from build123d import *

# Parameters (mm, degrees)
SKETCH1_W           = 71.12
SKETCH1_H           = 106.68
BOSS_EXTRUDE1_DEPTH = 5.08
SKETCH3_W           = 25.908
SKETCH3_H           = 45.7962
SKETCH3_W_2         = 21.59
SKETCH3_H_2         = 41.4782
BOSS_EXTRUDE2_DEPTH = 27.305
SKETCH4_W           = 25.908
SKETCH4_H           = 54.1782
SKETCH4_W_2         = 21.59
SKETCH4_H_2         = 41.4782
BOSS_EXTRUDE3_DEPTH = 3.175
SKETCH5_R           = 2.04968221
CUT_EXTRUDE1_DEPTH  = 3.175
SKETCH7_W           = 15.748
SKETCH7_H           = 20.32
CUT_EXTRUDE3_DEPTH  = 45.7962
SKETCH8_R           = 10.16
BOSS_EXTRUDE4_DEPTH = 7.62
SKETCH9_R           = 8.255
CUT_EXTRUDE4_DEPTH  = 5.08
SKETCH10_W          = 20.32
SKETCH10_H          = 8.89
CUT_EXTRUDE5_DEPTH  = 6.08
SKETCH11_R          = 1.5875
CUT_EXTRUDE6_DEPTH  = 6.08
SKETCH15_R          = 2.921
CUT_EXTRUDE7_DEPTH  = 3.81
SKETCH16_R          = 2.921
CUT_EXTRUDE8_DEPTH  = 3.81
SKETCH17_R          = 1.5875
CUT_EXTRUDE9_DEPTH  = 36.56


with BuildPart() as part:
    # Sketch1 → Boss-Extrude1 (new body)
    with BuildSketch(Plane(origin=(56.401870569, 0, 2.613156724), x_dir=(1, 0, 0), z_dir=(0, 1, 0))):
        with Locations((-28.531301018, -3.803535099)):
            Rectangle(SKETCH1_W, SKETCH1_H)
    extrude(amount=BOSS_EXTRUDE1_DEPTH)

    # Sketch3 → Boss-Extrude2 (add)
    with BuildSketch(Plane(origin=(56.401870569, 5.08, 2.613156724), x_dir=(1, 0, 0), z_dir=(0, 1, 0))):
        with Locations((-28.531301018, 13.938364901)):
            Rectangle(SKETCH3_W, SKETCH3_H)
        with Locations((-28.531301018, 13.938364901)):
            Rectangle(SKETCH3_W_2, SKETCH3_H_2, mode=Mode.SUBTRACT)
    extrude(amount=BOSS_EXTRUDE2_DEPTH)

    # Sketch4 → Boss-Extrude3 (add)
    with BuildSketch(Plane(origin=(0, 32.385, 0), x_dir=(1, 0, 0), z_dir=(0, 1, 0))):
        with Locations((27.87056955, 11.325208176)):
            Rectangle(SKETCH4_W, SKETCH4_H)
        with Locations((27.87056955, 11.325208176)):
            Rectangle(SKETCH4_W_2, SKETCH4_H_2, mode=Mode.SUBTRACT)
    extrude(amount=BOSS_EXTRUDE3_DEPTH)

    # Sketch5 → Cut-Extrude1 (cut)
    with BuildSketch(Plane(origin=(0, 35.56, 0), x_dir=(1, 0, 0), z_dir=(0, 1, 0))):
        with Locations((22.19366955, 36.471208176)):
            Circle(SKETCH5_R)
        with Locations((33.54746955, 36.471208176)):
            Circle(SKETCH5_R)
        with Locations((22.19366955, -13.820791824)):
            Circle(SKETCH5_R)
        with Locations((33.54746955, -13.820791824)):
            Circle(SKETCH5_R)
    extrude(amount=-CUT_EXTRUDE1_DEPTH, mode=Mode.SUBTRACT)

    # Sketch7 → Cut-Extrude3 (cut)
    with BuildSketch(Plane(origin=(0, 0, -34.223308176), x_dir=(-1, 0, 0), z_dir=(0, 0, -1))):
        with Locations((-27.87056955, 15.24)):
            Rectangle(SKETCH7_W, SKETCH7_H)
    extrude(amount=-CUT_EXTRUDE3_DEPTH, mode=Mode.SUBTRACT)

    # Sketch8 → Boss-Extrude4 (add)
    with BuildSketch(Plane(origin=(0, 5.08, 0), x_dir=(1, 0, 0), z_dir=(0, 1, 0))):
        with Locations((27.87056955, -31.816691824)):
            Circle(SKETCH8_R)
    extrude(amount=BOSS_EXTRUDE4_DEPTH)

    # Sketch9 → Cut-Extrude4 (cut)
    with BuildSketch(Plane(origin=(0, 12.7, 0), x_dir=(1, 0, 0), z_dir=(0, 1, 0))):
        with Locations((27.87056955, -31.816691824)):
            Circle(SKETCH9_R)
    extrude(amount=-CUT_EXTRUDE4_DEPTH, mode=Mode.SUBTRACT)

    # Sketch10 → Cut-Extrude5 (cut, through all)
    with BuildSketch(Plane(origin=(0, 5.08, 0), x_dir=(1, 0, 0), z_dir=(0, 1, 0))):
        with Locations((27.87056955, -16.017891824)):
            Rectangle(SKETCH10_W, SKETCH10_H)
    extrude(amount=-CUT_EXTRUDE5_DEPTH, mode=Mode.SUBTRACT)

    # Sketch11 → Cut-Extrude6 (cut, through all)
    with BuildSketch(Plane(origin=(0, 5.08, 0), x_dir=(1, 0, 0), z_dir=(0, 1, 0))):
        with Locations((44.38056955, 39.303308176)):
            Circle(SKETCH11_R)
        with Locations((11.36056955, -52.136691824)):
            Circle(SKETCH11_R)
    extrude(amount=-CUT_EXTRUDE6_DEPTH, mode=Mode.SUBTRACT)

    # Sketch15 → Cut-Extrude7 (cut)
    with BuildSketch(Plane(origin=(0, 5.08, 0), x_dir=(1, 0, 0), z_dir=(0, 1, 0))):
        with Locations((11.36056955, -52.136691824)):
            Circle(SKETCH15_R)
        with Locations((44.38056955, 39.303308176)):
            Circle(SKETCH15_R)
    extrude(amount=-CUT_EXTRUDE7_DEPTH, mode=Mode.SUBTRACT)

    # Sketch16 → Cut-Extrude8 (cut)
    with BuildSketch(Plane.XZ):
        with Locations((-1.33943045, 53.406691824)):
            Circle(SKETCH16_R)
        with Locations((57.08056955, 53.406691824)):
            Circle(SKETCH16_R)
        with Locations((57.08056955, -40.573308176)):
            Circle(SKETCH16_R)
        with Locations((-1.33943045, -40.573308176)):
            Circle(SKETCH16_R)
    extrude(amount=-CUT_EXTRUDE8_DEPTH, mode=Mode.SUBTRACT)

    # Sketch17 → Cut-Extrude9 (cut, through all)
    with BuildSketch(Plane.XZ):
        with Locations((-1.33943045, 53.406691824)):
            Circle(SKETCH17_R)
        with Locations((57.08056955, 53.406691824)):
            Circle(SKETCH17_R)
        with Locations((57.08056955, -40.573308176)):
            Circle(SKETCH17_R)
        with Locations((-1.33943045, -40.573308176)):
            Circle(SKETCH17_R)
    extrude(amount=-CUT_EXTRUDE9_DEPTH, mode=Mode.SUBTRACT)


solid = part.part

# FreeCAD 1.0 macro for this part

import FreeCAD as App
import Part
import Sketcher
from FreeCAD import Vector
Q = App.Units.Quantity


def add_polygon(sketch, points):
    """Adds a closed chain of lines whose ends are joined by coincident constraints."""
    first, n = sketch.GeometryCount, len(points)
    for a, b in zip(points, points[1:] + points[:1]):
        sketch.addGeometry(Part.LineSegment(App.Vector(*a, 0), App.Vector(*b, 0)), False)
    for i in range(n):
        sketch.addConstraint(Sketcher.Constraint("Coincident", first + i, 2, first + (i + 1) % n, 1))

doc = App.newDocument("Part")
body = doc.addObject("PartDesign::Body", "Body")

sketch1 = body.newObject("Sketcher::SketchObject", "Sketch")
sketch1.AttachmentSupport = (doc.getObject("XZ_Plane"), [""])
sketch1.MapMode = "FlatFace"
add_polygon(sketch1, [(-7.68943, -46.923308), (-7.68943, 59.756692), (63.43057, 59.756692), (63.43057, -46.923308)])
sketch1.addConstraint(Sketcher.Constraint("Vertical", 0))
sketch1.addConstraint(Sketcher.Constraint("Horizontal", 1))
sketch1.addConstraint(Sketcher.Constraint("Vertical", 2))
sketch1.addConstraint(Sketcher.Constraint("Horizontal", 3))
sketch1.addConstraint(Sketcher.Constraint("DistanceX", 1, 1, 1, 2, Q("2.8 in")))
sketch1.addConstraint(Sketcher.Constraint("DistanceY", 0, 1, 0, 2, Q("4.2 in")))
sketch1.addConstraint(Sketcher.Constraint("DistanceX", 0, 2, -1, 1, Q("7.68943 mm")))
sketch1.addConstraint(Sketcher.Constraint("DistanceY", -1, 1, 0, 2, Q("59.756692 mm")))
pad1 = body.newObject("PartDesign::Pad", "Pad")
pad1.Profile = sketch1
pad1.Length = Q("0.2 in")
pad1.Reversed = True

sketch2 = body.newObject("Sketcher::SketchObject", "Sketch001")
sketch2.AttachmentSupport = (doc.getObject("XZ_Plane"), [""])
sketch2.MapMode = "FlatFace"
sketch2.AttachmentOffset = App.Placement(Vector(0, 0, -0.2 * 25.4), App.Rotation())
add_polygon(sketch2, [(14.91657, -34.223308), (14.91657, 11.572892), (40.82457, 11.572892), (40.82457, -34.223308)])
add_polygon(sketch2, [(38.66557, 9.413892), (17.07557, 9.413892), (17.07557, -32.064308), (38.66557, -32.064308)])
sketch2.addConstraint(Sketcher.Constraint("Vertical", 0))
sketch2.addConstraint(Sketcher.Constraint("Horizontal", 1))
sketch2.addConstraint(Sketcher.Constraint("Vertical", 2))
sketch2.addConstraint(Sketcher.Constraint("Horizontal", 3))
sketch2.addConstraint(Sketcher.Constraint("Horizontal", 4))
sketch2.addConstraint(Sketcher.Constraint("Vertical", 5))
sketch2.addConstraint(Sketcher.Constraint("Horizontal", 6))
sketch2.addConstraint(Sketcher.Constraint("Vertical", 7))
sketch2.addConstraint(Sketcher.Constraint("DistanceX", 1, 1, 1, 2, Q("1.02 in")))
sketch2.addConstraint(Sketcher.Constraint("DistanceX", 4, 2, 4, 1, Q("0.85 in")))
sketch2.addConstraint(Sketcher.Constraint("DistanceY", 0, 1, 0, 2, Q("1.803 in")))
sketch2.addConstraint(Sketcher.Constraint("DistanceY", 5, 2, 5, 1, Q("1.633 in")))
sketch2.addConstraint(Sketcher.Constraint("DistanceX", 0, 2, 4, 2, Q("0.085 in")))
sketch2.addConstraint(Sketcher.Constraint("DistanceY", 4, 2, 0, 2, Q("0.085 in")))
sketch2.addConstraint(Sketcher.Constraint("DistanceX", -1, 1, 0, 2, Q("14.91657 mm")))
sketch2.addConstraint(Sketcher.Constraint("DistanceY", -1, 1, 0, 2, Q("11.572892 mm")))
pad2 = body.newObject("PartDesign::Pad", "Pad001")
pad2.Profile = sketch2
pad2.Length = Q("1.075 in")
pad2.Reversed = True

sketch3 = body.newObject("Sketcher::SketchObject", "Sketch002")
sketch3.AttachmentSupport = (doc.getObject("XZ_Plane"), [""])
sketch3.MapMode = "FlatFace"
sketch3.AttachmentOffset = App.Placement(Vector(0, 0, -1.275 * 25.4), App.Rotation())
add_polygon(sketch3, [(14.91657, -38.414308), (14.91657, 15.763892), (40.82457, 15.763892), (40.82457, -38.414308)])
add_polygon(sketch3, [(38.66557, 9.413892), (17.07557, 9.413892), (17.07557, -32.064308), (38.66557, -32.064308)])
sketch3.addConstraint(Sketcher.Constraint("Vertical", 0))
sketch3.addConstraint(Sketcher.Constraint("Horizontal", 1))
sketch3.addConstraint(Sketcher.Constraint("Vertical", 2))
sketch3.addConstraint(Sketcher.Constraint("Horizontal", 3))
sketch3.addConstraint(Sketcher.Constraint("Horizontal", 4))
sketch3.addConstraint(Sketcher.Constraint("Vertical", 5))
sketch3.addConstraint(Sketcher.Constraint("Horizontal", 6))
sketch3.addConstraint(Sketcher.Constraint("Vertical", 7))
sketch3.addConstraint(Sketcher.Constraint("DistanceX", 1, 1, 1, 2, Q("1.02 in")))
sketch3.addConstraint(Sketcher.Constraint("DistanceX", 4, 2, 4, 1, Q("0.85 in")))
sketch3.addConstraint(Sketcher.Constraint("DistanceY", 0, 1, 0, 2, Q("2.133 in")))
sketch3.addConstraint(Sketcher.Constraint("DistanceY", 5, 2, 5, 1, Q("1.633 in")))
sketch3.addConstraint(Sketcher.Constraint("DistanceY", 4, 2, 0, 2, Q("0.25 in")))
sketch3.addConstraint(Sketcher.Constraint("DistanceX", 0, 2, 4, 2, Q("0.085 in")))
sketch3.addConstraint(Sketcher.Constraint("DistanceX", -1, 1, 0, 2, Q("14.91657 mm")))
sketch3.addConstraint(Sketcher.Constraint("DistanceY", -1, 1, 0, 2, Q("15.763892 mm")))
pad3 = body.newObject("PartDesign::Pad", "Pad002")
pad3.Profile = sketch3
pad3.Length = Q("0.125 in")
pad3.Reversed = True

sketch4 = body.newObject("Sketcher::SketchObject", "Sketch003")
sketch4.AttachmentSupport = (doc.getObject("XZ_Plane"), [""])
sketch4.MapMode = "FlatFace"
sketch4.AttachmentOffset = App.Placement(Vector(0, 0, -1.4 * 25.4), App.Rotation())
sketch4.addGeometry(Part.Circle(Vector(22.19367, -36.471208, 0), Vector(0, 0, 1), 2.049682), False)
sketch4.addGeometry(Part.Circle(Vector(33.54747, -36.471208, 0), Vector(0, 0, 1), 2.049682), False)
sketch4.addGeometry(Part.Circle(Vector(22.19367, 13.820792, 0), Vector(0, 0, 1), 2.049682), False)
sketch4.addGeometry(Part.Circle(Vector(33.54747, 13.820792, 0), Vector(0, 0, 1), 2.049682), False)
sketch4.addConstraint(Sketcher.Constraint("Equal", 0, 1))
sketch4.addConstraint(Sketcher.Constraint("Equal", 1, 2))
sketch4.addConstraint(Sketcher.Constraint("Equal", 2, 3))
sketch4.addConstraint(Sketcher.Constraint("Horizontal", 0, 3, 1, 3))
sketch4.addConstraint(Sketcher.Constraint("Horizontal", 2, 3, 3, 3))
sketch4.addConstraint(Sketcher.Constraint("Vertical", 0, 3, 2, 3))
sketch4.addConstraint(Sketcher.Constraint("Vertical", 1, 3, 3, 3))
sketch4.addConstraint(Sketcher.Constraint("DistanceY", 0, 3, 2, 3, Q("1.98 in")))
sketch4.addConstraint(Sketcher.Constraint("DistanceX", 0, 3, 1, 3, Q("0.447 in")))
sketch4.addConstraint(Sketcher.Constraint("Diameter", 0, Q("4.099364 mm")))
sketch4.addConstraint(Sketcher.Constraint("DistanceX", -1, 1, 0, 3, Q("22.19367 mm")))
sketch4.addConstraint(Sketcher.Constraint("DistanceY", 0, 3, -1, 1, Q("36.471208 mm")))
pocket1 = body.newObject("PartDesign::Pocket", "Pocket")
pocket1.Profile = sketch4
pocket1.Length = Q("0.125 in")
pocket1.Reversed = True

sketch5 = body.newObject("Sketcher::SketchObject", "Sketch004")
sketch5.AttachmentSupport = (doc.getObject("XY_Plane"), [""])
sketch5.MapMode = "FlatFace"
sketch5.AttachmentOffset = App.Placement(Vector(0, 0, -34.223308), App.Rotation())
add_polygon(sketch5, [(35.74457, 25.4), (35.74457, 5.08), (19.99657, 5.08), (19.99657, 25.4)])
sketch5.addConstraint(Sketcher.Constraint("Vertical", 0))
sketch5.addConstraint(Sketcher.Constraint("Horizontal", 1))
sketch5.addConstraint(Sketcher.Constraint("Vertical", 2))
sketch5.addConstraint(Sketcher.Constraint("Horizontal", 3))
sketch5.addConstraint(Sketcher.Constraint("DistanceY", 0, 2, 0, 1, Q("0.8 in")))
sketch5.addConstraint(Sketcher.Constraint("DistanceY", -1, 1, 2, 2, Q("1 in")))
sketch5.addConstraint(Sketcher.Constraint("DistanceX", 1, 2, 1, 1, Q("0.62 in")))
sketch5.addConstraint(Sketcher.Constraint("DistanceX", -1, 1, 0, 2, Q("35.74457 mm")))
pocket2 = body.newObject("PartDesign::Pocket", "Pocket001")
pocket2.Profile = sketch5
pocket2.Length = Q("1.803 in")
pocket2.Reversed = True

sketch6 = body.newObject("Sketcher::SketchObject", "Sketch005")
sketch6.AttachmentSupport = (doc.getObject("XZ_Plane"), [""])
sketch6.MapMode = "FlatFace"
sketch6.AttachmentOffset = App.Placement(Vector(0, 0, -0.2 * 25.4), App.Rotation())
sketch6.addGeometry(Part.Circle(Vector(27.87057, 31.816692, 0), Vector(0, 0, 1), 10.16), False)
sketch6.addConstraint(Sketcher.Constraint("Diameter", 0, Q("0.8 in")))
sketch6.addConstraint(Sketcher.Constraint("DistanceX", -1, 1, 0, 3, Q("27.87057 mm")))
sketch6.addConstraint(Sketcher.Constraint("DistanceY", -1, 1, 0, 3, Q("31.816692 mm")))
pad4 = body.newObject("PartDesign::Pad", "Pad003")
pad4.Profile = sketch6
pad4.Length = Q("0.3 in")
pad4.Reversed = True

sketch7 = body.newObject("Sketcher::SketchObject", "Sketch006")
sketch7.AttachmentSupport = (doc.getObject("XZ_Plane"), [""])
sketch7.MapMode = "FlatFace"
sketch7.AttachmentOffset = App.Placement(Vector(0, 0, -0.5 * 25.4), App.Rotation())
sketch7.addGeometry(Part.Circle(Vector(27.87057, 31.816692, 0), Vector(0, 0, 1), 8.255), False)
sketch7.addConstraint(Sketcher.Constraint("Diameter", 0, Q("0.65 in")))
sketch7.addConstraint(Sketcher.Constraint("DistanceX", -1, 1, 0, 3, Q("27.87057 mm")))
sketch7.addConstraint(Sketcher.Constraint("DistanceY", -1, 1, 0, 3, Q("31.816692 mm")))
pocket3 = body.newObject("PartDesign::Pocket", "Pocket002")
pocket3.Profile = sketch7
pocket3.Length = Q("0.2 in")
pocket3.Reversed = True

sketch8 = body.newObject("Sketcher::SketchObject", "Sketch007")
sketch8.AttachmentSupport = (doc.getObject("XZ_Plane"), [""])
sketch8.MapMode = "FlatFace"
sketch8.AttachmentOffset = App.Placement(Vector(0, 0, -0.2 * 25.4), App.Rotation())
add_polygon(sketch8, [(17.71057, 11.572892), (17.71057, 20.462892), (38.03057, 20.462892), (38.03057, 11.572892)])
sketch8.addConstraint(Sketcher.Constraint("Vertical", 0))
sketch8.addConstraint(Sketcher.Constraint("Horizontal", 1))
sketch8.addConstraint(Sketcher.Constraint("Vertical", 2))
sketch8.addConstraint(Sketcher.Constraint("Horizontal", 3))
sketch8.addConstraint(Sketcher.Constraint("DistanceX", 1, 1, 1, 2, Q("0.8 in")))
sketch8.addConstraint(Sketcher.Constraint("DistanceY", 0, 1, 0, 2, Q("0.35 in")))
sketch8.addConstraint(Sketcher.Constraint("DistanceX", -1, 1, 0, 2, Q("17.71057 mm")))
sketch8.addConstraint(Sketcher.Constraint("DistanceY", -1, 1, 0, 2, Q("20.462892 mm")))
pocket4 = body.newObject("PartDesign::Pocket", "Pocket003")
pocket4.Profile = sketch8
pocket4.Type = "ThroughAll"
pocket4.Reversed = True

sketch9 = body.newObject("Sketcher::SketchObject", "Sketch008")
sketch9.AttachmentSupport = (doc.getObject("XZ_Plane"), [""])
sketch9.MapMode = "FlatFace"
sketch9.AttachmentOffset = App.Placement(Vector(0, 0, -0.2 * 25.4), App.Rotation())
sketch9.addGeometry(Part.Circle(Vector(44.38057, -39.303308, 0), Vector(0, 0, 1), 1.5875), False)
sketch9.addGeometry(Part.Circle(Vector(11.36057, 52.136692, 0), Vector(0, 0, 1), 1.5875), False)
sketch9.addConstraint(Sketcher.Constraint("Equal", 0, 1))
sketch9.addConstraint(Sketcher.Constraint("Diameter", 0, Q("0.125 in")))
sketch9.addConstraint(Sketcher.Constraint("DistanceX", 1, 3, 0, 3, Q("1.3 in")))
sketch9.addConstraint(Sketcher.Constraint("DistanceY", 0, 3, 1, 3, Q("3.6 in")))
sketch9.addConstraint(Sketcher.Constraint("DistanceX", -1, 1, 0, 3, Q("44.38057 mm")))
sketch9.addConstraint(Sketcher.Constraint("DistanceY", 0, 3, -1, 1, Q("39.303308 mm")))
pocket5 = body.newObject("PartDesign::Pocket", "Pocket004")
pocket5.Profile = sketch9
pocket5.Type = "ThroughAll"
pocket5.Reversed = True

sketch10 = body.newObject("Sketcher::SketchObject", "Sketch009")
sketch10.AttachmentSupport = (doc.getObject("XZ_Plane"), [""])
sketch10.MapMode = "FlatFace"
sketch10.AttachmentOffset = App.Placement(Vector(0, 0, -0.2 * 25.4), App.Rotation())
sketch10.addGeometry(Part.Circle(Vector(11.36057, 52.136692, 0), Vector(0, 0, 1), 2.921), False)
sketch10.addGeometry(Part.Circle(Vector(44.38057, -39.303308, 0), Vector(0, 0, 1), 2.921), False)
sketch10.addConstraint(Sketcher.Constraint("Equal", 0, 1))
sketch10.addConstraint(Sketcher.Constraint("Diameter", 0, Q("0.23 in")))
sketch10.addConstraint(Sketcher.Constraint("DistanceX", 0, 3, 1, 3, Q("1.3 in")))
sketch10.addConstraint(Sketcher.Constraint("DistanceY", 1, 3, 0, 3, Q("3.6 in")))
sketch10.addConstraint(Sketcher.Constraint("DistanceX", -1, 1, 0, 3, Q("11.36057 mm")))
sketch10.addConstraint(Sketcher.Constraint("DistanceY", -1, 1, 0, 3, Q("52.136692 mm")))
pocket6 = body.newObject("PartDesign::Pocket", "Pocket005")
pocket6.Profile = sketch10
pocket6.Length = Q("0.15 in")
pocket6.Reversed = True

sketch11 = body.newObject("Sketcher::SketchObject", "Sketch010")
sketch11.AttachmentSupport = (doc.getObject("XZ_Plane"), [""])
sketch11.MapMode = "FlatFace"
sketch11.addGeometry(Part.Circle(Vector(-1.33943, 53.406692, 0), Vector(0, 0, 1), 2.921), False)
sketch11.addGeometry(Part.Circle(Vector(57.08057, 53.406692, 0), Vector(0, 0, 1), 2.921), False)
sketch11.addGeometry(Part.Circle(Vector(57.08057, -40.573308, 0), Vector(0, 0, 1), 2.921), False)
sketch11.addGeometry(Part.Circle(Vector(-1.33943, -40.573308, 0), Vector(0, 0, 1), 2.921), False)
sketch11.addConstraint(Sketcher.Constraint("Equal", 0, 1))
sketch11.addConstraint(Sketcher.Constraint("Equal", 1, 2))
sketch11.addConstraint(Sketcher.Constraint("Equal", 2, 3))
sketch11.addConstraint(Sketcher.Constraint("Horizontal", 0, 3, 1, 3))
sketch11.addConstraint(Sketcher.Constraint("Horizontal", 2, 3, 3, 3))
sketch11.addConstraint(Sketcher.Constraint("Vertical", 1, 3, 2, 3))
sketch11.addConstraint(Sketcher.Constraint("Vertical", 0, 3, 3, 3))
sketch11.addConstraint(Sketcher.Constraint("Diameter", 0, Q("0.23 in")))
sketch11.addConstraint(Sketcher.Constraint("DistanceX", 0, 3, 1, 3, Q("2.3 in")))
sketch11.addConstraint(Sketcher.Constraint("DistanceY", 2, 3, 1, 3, Q("3.7 in")))
sketch11.addConstraint(Sketcher.Constraint("DistanceX", 0, 3, -1, 1, Q("1.33943 mm")))
sketch11.addConstraint(Sketcher.Constraint("DistanceY", -1, 1, 0, 3, Q("53.406692 mm")))
pocket7 = body.newObject("PartDesign::Pocket", "Pocket006")
pocket7.Profile = sketch11
pocket7.Length = Q("0.15 in")

sketch12 = body.newObject("Sketcher::SketchObject", "Sketch011")
sketch12.AttachmentSupport = (doc.getObject("XZ_Plane"), [""])
sketch12.MapMode = "FlatFace"
sketch12.addGeometry(Part.Circle(Vector(-1.33943, 53.406692, 0), Vector(0, 0, 1), 1.5875), False)
sketch12.addGeometry(Part.Circle(Vector(57.08057, 53.406692, 0), Vector(0, 0, 1), 1.5875), False)
sketch12.addGeometry(Part.Circle(Vector(57.08057, -40.573308, 0), Vector(0, 0, 1), 1.5875), False)
sketch12.addGeometry(Part.Circle(Vector(-1.33943, -40.573308, 0), Vector(0, 0, 1), 1.5875), False)
sketch12.addConstraint(Sketcher.Constraint("Equal", 0, 1))
sketch12.addConstraint(Sketcher.Constraint("Equal", 1, 2))
sketch12.addConstraint(Sketcher.Constraint("Equal", 2, 3))
sketch12.addConstraint(Sketcher.Constraint("Horizontal", 0, 3, 1, 3))
sketch12.addConstraint(Sketcher.Constraint("Horizontal", 2, 3, 3, 3))
sketch12.addConstraint(Sketcher.Constraint("Vertical", 1, 3, 2, 3))
sketch12.addConstraint(Sketcher.Constraint("Vertical", 0, 3, 3, 3))
sketch12.addConstraint(Sketcher.Constraint("Diameter", 0, Q("0.125 in")))
sketch12.addConstraint(Sketcher.Constraint("DistanceX", 0, 3, 1, 3, Q("2.3 in")))
sketch12.addConstraint(Sketcher.Constraint("DistanceY", 2, 3, 1, 3, Q("3.7 in")))
sketch12.addConstraint(Sketcher.Constraint("DistanceX", 0, 3, -1, 1, Q("1.33943 mm")))
sketch12.addConstraint(Sketcher.Constraint("DistanceY", -1, 1, 0, 3, Q("53.406692 mm")))
pocket8 = body.newObject("PartDesign::Pocket", "Pocket007")
pocket8.Profile = sketch12
pocket8.Type = "ThroughAll"

doc.recompute()
